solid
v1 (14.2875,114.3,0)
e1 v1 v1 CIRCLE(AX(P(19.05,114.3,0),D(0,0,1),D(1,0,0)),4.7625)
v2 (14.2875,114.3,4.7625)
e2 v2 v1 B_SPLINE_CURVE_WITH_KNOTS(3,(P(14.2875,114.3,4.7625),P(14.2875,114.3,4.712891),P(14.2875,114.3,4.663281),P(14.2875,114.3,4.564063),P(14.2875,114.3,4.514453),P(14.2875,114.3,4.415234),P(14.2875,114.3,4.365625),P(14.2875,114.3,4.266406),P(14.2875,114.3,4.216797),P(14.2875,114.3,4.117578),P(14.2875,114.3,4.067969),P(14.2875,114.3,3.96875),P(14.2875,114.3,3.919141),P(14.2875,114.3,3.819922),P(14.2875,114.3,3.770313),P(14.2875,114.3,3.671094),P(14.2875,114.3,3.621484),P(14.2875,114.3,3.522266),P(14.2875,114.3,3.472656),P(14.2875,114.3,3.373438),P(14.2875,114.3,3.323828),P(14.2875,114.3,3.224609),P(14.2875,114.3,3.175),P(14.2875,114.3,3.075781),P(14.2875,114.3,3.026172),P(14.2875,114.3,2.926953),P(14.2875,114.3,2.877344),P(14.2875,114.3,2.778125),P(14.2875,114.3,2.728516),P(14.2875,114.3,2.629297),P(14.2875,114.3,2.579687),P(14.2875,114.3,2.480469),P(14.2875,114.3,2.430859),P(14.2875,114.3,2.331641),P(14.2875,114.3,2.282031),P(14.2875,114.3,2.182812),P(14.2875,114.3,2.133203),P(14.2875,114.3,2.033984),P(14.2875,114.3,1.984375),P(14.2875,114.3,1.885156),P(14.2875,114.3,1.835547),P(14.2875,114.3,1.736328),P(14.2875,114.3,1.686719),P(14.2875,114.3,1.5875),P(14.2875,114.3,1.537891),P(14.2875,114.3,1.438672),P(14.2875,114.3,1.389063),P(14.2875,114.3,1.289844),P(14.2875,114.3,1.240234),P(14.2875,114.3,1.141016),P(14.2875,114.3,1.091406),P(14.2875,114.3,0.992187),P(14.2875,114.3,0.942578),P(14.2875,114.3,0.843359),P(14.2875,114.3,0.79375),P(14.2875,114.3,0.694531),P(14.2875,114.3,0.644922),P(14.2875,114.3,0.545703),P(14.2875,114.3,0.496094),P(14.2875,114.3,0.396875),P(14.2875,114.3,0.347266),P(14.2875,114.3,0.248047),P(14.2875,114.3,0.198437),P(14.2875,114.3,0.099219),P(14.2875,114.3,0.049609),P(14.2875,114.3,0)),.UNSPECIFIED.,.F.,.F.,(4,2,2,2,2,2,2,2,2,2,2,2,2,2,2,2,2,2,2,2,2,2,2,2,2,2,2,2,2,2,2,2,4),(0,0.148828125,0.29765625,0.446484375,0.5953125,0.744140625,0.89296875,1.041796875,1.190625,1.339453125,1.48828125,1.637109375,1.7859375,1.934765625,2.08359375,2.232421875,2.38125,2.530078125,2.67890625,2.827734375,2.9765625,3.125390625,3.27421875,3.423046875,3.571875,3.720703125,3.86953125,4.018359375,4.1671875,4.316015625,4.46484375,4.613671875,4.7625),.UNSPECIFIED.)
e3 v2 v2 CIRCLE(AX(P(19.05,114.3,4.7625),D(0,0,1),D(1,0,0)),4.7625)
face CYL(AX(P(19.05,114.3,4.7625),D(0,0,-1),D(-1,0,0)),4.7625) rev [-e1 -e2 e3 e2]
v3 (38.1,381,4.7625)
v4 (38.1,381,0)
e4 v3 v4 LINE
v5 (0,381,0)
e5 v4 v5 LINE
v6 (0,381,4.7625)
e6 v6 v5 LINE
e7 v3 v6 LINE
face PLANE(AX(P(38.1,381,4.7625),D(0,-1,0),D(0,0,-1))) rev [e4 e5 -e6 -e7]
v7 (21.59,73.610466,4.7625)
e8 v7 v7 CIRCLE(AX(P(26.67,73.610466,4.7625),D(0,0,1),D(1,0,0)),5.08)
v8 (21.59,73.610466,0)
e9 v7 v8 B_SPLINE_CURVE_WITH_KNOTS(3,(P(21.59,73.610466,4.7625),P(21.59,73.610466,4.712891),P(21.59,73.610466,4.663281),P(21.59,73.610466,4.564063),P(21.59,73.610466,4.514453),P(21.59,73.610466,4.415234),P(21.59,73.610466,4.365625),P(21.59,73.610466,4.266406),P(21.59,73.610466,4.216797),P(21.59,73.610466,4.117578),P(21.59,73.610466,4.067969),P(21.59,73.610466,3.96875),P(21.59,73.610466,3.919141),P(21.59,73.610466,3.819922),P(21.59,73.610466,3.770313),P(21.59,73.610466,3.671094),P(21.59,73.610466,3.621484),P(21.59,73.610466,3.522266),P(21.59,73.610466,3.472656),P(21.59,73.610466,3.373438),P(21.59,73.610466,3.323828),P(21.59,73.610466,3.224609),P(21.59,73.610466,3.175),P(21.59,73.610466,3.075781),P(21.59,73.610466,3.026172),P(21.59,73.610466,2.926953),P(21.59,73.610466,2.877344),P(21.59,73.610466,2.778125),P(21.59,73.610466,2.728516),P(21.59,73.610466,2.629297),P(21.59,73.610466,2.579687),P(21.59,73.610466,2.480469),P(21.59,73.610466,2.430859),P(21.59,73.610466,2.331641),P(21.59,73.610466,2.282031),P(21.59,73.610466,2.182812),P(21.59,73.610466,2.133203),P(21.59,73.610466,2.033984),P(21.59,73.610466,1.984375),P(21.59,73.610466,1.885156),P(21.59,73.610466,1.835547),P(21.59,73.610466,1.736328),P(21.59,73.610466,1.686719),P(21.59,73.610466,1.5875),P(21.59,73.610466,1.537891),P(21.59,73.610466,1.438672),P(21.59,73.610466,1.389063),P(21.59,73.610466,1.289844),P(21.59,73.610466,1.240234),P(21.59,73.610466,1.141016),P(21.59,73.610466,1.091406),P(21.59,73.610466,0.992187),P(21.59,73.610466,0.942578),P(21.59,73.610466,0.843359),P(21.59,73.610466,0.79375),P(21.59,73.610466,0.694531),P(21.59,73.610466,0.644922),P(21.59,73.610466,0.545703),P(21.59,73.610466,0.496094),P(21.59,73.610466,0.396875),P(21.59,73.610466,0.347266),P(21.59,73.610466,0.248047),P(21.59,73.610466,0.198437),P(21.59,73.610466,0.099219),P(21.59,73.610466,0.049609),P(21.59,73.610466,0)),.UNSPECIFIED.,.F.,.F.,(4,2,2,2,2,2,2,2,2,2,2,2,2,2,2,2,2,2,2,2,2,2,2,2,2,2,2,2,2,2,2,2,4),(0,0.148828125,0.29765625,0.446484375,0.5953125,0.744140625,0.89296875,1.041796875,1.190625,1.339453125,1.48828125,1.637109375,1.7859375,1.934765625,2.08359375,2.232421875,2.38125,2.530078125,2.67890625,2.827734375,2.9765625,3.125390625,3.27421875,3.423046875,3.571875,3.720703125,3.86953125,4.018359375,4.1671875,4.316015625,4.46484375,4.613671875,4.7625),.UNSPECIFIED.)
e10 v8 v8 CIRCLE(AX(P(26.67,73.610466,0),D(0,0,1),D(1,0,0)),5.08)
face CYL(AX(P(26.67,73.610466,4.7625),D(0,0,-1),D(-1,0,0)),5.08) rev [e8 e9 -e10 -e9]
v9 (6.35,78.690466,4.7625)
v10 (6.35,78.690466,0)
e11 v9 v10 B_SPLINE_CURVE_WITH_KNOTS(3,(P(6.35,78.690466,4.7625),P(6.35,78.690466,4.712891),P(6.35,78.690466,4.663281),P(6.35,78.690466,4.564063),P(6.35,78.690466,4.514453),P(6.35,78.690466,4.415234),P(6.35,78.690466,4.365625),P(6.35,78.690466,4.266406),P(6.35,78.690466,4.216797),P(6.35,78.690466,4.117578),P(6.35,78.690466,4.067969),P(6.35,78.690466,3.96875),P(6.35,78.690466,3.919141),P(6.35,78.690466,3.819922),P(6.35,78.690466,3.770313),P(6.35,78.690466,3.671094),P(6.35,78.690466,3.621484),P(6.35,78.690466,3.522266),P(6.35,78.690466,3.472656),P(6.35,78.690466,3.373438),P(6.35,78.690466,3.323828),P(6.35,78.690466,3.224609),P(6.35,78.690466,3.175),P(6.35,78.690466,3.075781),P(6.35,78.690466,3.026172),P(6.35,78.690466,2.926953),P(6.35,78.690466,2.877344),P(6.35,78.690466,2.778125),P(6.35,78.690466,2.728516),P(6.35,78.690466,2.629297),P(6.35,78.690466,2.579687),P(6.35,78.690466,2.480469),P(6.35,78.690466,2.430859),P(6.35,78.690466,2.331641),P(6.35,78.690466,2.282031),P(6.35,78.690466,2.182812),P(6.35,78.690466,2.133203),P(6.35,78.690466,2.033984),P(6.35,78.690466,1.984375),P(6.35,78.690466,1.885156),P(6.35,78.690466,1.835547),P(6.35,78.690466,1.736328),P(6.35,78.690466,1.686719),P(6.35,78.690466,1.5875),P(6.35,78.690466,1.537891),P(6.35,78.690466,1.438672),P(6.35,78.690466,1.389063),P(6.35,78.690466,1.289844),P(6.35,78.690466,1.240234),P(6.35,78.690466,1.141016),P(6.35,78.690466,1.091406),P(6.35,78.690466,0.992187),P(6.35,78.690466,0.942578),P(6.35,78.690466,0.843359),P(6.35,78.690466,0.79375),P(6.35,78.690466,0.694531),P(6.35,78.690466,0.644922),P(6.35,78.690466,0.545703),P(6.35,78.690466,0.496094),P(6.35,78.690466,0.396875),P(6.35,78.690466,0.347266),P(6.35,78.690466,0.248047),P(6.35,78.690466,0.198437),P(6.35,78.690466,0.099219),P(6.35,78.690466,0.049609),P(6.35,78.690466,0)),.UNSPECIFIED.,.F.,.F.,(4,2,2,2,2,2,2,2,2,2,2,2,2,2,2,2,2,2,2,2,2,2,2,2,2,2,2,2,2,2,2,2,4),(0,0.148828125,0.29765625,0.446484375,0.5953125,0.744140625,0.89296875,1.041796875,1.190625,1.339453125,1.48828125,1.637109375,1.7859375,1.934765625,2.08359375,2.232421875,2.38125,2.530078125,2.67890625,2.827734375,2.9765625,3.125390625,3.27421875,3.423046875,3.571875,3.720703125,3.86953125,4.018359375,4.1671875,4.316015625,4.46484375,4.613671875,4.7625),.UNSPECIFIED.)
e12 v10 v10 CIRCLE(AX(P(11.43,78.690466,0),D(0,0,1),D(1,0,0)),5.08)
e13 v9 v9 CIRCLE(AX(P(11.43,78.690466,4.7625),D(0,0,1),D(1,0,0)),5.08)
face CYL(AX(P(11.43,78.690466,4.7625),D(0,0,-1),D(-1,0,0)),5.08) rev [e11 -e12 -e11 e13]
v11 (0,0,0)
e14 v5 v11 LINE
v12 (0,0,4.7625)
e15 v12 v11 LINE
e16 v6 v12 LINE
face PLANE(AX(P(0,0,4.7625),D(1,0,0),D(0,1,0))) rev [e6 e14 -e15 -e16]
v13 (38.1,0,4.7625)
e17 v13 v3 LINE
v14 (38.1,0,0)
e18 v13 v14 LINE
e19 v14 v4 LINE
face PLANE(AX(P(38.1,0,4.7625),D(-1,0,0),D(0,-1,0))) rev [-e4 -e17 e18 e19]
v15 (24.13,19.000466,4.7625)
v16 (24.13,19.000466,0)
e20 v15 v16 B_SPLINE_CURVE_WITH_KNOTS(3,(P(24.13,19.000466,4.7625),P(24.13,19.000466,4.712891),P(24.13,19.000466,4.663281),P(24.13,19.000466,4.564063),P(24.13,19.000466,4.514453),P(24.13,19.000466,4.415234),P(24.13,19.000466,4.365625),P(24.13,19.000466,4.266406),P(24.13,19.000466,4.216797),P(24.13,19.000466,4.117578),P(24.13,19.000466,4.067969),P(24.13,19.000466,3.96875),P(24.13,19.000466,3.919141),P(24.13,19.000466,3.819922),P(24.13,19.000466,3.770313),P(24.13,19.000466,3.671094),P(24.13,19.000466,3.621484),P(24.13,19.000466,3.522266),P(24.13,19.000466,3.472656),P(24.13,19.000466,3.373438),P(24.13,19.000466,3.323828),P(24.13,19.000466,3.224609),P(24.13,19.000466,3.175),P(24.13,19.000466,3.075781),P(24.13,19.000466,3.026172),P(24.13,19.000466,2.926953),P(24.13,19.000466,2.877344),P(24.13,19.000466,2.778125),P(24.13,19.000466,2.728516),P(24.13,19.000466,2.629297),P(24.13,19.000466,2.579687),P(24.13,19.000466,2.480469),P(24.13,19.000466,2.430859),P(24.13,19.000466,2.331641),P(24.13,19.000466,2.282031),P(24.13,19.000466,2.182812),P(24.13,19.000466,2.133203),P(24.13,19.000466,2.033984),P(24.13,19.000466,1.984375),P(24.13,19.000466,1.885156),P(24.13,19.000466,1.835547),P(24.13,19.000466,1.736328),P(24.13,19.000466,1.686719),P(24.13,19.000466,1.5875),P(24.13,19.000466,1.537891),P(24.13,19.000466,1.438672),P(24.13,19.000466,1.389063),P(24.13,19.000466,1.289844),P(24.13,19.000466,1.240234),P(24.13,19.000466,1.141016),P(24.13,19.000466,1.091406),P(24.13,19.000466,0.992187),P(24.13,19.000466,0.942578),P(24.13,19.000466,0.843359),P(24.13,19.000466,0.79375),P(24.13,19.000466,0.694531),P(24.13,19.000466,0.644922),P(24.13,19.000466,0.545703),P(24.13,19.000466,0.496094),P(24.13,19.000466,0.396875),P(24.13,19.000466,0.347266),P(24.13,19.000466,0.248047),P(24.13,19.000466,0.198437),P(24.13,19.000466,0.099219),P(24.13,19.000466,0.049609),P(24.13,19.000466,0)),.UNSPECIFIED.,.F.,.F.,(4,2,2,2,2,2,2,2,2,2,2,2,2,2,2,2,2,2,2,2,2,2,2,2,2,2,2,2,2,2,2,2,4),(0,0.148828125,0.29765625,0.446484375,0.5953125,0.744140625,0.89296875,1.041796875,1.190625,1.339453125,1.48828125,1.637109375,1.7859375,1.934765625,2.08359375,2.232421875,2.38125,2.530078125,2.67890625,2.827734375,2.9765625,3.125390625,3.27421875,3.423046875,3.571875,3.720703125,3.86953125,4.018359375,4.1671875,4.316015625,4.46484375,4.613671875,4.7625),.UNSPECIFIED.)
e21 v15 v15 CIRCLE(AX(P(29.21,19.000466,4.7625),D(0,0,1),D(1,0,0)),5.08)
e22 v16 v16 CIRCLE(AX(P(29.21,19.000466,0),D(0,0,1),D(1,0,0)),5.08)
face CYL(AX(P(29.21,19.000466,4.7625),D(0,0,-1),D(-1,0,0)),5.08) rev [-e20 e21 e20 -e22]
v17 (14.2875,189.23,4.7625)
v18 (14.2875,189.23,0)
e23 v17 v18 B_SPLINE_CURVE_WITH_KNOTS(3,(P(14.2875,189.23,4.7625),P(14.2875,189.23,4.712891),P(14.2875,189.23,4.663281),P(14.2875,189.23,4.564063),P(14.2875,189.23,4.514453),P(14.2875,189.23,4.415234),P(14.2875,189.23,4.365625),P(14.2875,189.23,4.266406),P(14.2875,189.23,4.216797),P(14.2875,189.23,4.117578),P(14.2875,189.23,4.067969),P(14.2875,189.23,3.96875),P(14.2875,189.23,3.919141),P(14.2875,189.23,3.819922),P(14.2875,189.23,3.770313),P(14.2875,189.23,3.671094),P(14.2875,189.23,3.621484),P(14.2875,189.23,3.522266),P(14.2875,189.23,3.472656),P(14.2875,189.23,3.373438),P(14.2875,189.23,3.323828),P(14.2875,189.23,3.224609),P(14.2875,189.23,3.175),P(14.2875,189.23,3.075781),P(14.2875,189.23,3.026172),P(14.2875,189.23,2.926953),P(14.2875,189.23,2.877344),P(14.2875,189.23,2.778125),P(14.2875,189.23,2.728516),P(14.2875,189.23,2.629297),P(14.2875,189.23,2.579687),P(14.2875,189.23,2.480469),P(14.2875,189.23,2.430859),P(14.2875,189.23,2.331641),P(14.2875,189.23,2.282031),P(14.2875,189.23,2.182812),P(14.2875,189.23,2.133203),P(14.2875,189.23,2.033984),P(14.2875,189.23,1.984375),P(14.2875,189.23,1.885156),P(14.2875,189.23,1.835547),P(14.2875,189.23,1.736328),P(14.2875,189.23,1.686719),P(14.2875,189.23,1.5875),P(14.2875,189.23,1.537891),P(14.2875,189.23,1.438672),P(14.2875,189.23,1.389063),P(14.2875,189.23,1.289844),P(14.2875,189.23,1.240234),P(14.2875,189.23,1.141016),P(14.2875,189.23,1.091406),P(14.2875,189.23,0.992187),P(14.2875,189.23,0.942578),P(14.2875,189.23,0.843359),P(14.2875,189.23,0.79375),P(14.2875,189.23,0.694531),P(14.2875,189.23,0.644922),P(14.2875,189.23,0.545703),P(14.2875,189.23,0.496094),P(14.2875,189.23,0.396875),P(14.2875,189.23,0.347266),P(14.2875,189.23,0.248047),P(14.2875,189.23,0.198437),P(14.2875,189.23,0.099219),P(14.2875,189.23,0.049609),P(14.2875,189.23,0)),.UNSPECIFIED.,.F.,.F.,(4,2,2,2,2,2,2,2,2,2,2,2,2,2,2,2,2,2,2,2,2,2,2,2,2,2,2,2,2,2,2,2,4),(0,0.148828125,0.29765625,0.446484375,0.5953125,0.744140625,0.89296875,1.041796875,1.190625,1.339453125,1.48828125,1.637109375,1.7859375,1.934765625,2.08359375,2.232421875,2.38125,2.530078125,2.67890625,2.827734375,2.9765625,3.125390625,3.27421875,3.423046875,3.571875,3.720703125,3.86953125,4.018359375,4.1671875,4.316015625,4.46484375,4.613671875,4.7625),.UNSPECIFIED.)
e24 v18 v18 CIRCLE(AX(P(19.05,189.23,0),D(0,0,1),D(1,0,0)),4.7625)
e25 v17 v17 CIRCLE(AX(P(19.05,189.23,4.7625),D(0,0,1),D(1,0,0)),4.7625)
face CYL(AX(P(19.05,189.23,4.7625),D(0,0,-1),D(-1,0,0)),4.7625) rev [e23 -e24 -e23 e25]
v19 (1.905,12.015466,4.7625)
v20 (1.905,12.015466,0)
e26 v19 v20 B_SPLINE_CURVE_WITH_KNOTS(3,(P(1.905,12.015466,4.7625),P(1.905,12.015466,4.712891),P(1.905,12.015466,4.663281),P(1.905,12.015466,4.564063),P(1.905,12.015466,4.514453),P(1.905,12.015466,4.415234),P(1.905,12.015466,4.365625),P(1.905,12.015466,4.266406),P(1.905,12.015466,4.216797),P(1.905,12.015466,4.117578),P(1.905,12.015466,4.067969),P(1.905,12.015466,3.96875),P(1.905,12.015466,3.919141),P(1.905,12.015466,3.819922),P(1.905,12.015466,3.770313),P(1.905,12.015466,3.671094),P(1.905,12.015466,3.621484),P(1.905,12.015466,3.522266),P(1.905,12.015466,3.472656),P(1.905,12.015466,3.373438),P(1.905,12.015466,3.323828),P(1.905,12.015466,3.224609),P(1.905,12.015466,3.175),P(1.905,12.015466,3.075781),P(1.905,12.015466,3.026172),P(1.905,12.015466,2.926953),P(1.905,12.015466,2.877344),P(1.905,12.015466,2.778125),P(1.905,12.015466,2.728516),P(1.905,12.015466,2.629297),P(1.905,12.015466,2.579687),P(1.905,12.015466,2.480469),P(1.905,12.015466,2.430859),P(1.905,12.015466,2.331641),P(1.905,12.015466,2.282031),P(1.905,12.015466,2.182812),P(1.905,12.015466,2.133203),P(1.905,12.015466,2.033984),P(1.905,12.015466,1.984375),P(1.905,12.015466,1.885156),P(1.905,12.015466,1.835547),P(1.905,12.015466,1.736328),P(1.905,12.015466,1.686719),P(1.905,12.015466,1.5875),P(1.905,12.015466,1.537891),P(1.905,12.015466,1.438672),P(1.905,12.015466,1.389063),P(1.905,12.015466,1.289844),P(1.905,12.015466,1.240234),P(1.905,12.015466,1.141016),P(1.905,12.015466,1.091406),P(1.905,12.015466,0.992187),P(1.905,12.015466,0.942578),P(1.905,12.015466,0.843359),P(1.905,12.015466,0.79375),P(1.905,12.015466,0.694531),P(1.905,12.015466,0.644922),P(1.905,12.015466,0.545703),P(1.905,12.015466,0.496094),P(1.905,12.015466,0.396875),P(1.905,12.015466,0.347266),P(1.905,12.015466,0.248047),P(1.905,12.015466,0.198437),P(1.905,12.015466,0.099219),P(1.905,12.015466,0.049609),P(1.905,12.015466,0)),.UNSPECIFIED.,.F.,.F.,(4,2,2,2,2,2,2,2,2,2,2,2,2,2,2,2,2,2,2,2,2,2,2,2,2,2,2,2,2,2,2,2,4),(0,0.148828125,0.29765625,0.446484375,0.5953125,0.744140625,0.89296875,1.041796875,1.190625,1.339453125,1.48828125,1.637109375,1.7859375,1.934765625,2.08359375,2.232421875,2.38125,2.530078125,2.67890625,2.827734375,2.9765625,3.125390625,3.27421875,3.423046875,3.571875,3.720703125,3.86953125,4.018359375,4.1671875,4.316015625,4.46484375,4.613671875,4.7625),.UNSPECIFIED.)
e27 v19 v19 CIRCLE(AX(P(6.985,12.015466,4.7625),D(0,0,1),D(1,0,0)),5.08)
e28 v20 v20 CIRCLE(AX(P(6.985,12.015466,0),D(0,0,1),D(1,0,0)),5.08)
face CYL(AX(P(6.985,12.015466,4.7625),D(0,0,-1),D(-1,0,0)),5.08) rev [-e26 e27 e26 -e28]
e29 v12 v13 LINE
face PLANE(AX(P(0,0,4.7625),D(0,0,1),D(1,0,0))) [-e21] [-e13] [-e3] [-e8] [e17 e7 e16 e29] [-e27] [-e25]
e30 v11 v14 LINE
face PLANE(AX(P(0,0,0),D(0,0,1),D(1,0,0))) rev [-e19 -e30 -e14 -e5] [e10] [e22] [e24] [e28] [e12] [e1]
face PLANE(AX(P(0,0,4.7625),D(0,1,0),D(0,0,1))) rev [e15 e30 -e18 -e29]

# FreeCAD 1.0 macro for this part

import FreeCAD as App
import Part
import Sketcher

V = App.Vector
Q = App.Units.Quantity


def add_polygon(sketch, points):
    """Adds a closed chain of lines whose ends are joined by coincident constraints."""
    first, n = sketch.GeometryCount, len(points)
    for a, b in zip(points, points[1:] + points[:1]):
        sketch.addGeometry(Part.LineSegment(App.Vector(*a, 0), App.Vector(*b, 0)), False)
    for i in range(n):
        sketch.addConstraint(Sketcher.Constraint("Coincident", first + i, 2, first + (i + 1) % n, 1))

doc = App.newDocument("Part")
body = doc.addObject("PartDesign::Body", "Body")

# Sketch on XY plane
sketch1 = body.newObject("Sketcher::SketchObject", "Sketch")
sketch1.AttachmentSupport = (doc.getObject("XY_Plane"), [""])
sketch1.MapMode = "FlatFace"
add_polygon(sketch1, [(0, 381), (0, 0), (38.1, 0), (38.1, 381)])  # lines 0-3
sketch1.addGeometry(Part.Circle(V(6.985, 12.015466, 0), V(0, 0, 1), 5.08), False)  # 4
sketch1.addGeometry(Part.Circle(V(11.43, 78.690466, 0), V(0, 0, 1), 5.08), False)  # 5
sketch1.addGeometry(Part.Circle(V(29.21, 19.000466, 0), V(0, 0, 1), 5.08), False)  # 6
sketch1.addGeometry(Part.Circle(V(26.67, 73.610466, 0), V(0, 0, 1), 5.08), False)  # 7
sketch1.addGeometry(Part.Circle(V(19.05, 114.3, 0), V(0, 0, 1), 4.7625), False)  # 8
sketch1.addGeometry(Part.Circle(V(19.05, 189.23, 0), V(0, 0, 1), 4.7625), False)  # 9
sketch1.addConstraint(Sketcher.Constraint("Vertical", 0))
sketch1.addConstraint(Sketcher.Constraint("Horizontal", 1))
sketch1.addConstraint(Sketcher.Constraint("Vertical", 2))
sketch1.addConstraint(Sketcher.Constraint("Horizontal", 3))
sketch1.addConstraint(Sketcher.Constraint("Coincident", 0, 2, -1, 1))
sketch1.addConstraint(Sketcher.Constraint("Equal", 4, 5))
sketch1.addConstraint(Sketcher.Constraint("Equal", 5, 6))
sketch1.addConstraint(Sketcher.Constraint("Equal", 6, 7))
sketch1.addConstraint(Sketcher.Constraint("Equal", 8, 9))
sketch1.addConstraint(Sketcher.Constraint("Vertical", 8, 3, 9, 3))
sketch1.addConstraint(Sketcher.Constraint("Diameter", 4, Q("0.4 in")))
sketch1.addConstraint(Sketcher.Constraint("DistanceY", 0, 2, 0, 1, Q("15 in")))
sketch1.addConstraint(Sketcher.Constraint("Diameter", 8, Q("0.375 in")))
sketch1.addConstraint(Sketcher.Constraint("DistanceX", 1, 1, 1, 2, Q("1.5 in")))
sketch1.addConstraint(Sketcher.Constraint("DistanceY", -1, 1, 8, 3, Q("4.5 in")))
sketch1.addConstraint(Sketcher.Constraint("DistanceX", 5, 3, 6, 3, Q("0.7 in")))
sketch1.addConstraint(Sketcher.Constraint("DistanceX", 5, 3, 7, 3, Q("0.6 in")))
sketch1.addConstraint(Sketcher.Constraint("DistanceY", 7, 3, 5, 3, Q("0.2 in")))
sketch1.addConstraint(Sketcher.Constraint("DistanceX", 5, 3, 8, 3, Q("0.3 in")))
sketch1.addConstraint(Sketcher.Constraint("DistanceX", -1, 1, 5, 3, Q("0.45 in")))
sketch1.addConstraint(Sketcher.Constraint("DistanceY", -1, 1, 9, 3, Q("7.45 in")))
sketch1.addConstraint(Sketcher.Constraint("DistanceY", 6, 3, 5, 3, Q("2.35 in")))
sketch1.addConstraint(Sketcher.Constraint("DistanceX", -1, 1, 4, 3, Q("0.275 in")))
sketch1.addConstraint(Sketcher.Constraint("DistanceY", 4, 3, 5, 3, Q("2.625 in")))
sketch1.addConstraint(Sketcher.Constraint("DistanceY", -1, 1, 4, 3, 12.015466))
pad1 = body.newObject("PartDesign::Pad", "Pad")
pad1.Profile = sketch1
pad1.Length = Q("0.1875 in")

doc.recompute()
